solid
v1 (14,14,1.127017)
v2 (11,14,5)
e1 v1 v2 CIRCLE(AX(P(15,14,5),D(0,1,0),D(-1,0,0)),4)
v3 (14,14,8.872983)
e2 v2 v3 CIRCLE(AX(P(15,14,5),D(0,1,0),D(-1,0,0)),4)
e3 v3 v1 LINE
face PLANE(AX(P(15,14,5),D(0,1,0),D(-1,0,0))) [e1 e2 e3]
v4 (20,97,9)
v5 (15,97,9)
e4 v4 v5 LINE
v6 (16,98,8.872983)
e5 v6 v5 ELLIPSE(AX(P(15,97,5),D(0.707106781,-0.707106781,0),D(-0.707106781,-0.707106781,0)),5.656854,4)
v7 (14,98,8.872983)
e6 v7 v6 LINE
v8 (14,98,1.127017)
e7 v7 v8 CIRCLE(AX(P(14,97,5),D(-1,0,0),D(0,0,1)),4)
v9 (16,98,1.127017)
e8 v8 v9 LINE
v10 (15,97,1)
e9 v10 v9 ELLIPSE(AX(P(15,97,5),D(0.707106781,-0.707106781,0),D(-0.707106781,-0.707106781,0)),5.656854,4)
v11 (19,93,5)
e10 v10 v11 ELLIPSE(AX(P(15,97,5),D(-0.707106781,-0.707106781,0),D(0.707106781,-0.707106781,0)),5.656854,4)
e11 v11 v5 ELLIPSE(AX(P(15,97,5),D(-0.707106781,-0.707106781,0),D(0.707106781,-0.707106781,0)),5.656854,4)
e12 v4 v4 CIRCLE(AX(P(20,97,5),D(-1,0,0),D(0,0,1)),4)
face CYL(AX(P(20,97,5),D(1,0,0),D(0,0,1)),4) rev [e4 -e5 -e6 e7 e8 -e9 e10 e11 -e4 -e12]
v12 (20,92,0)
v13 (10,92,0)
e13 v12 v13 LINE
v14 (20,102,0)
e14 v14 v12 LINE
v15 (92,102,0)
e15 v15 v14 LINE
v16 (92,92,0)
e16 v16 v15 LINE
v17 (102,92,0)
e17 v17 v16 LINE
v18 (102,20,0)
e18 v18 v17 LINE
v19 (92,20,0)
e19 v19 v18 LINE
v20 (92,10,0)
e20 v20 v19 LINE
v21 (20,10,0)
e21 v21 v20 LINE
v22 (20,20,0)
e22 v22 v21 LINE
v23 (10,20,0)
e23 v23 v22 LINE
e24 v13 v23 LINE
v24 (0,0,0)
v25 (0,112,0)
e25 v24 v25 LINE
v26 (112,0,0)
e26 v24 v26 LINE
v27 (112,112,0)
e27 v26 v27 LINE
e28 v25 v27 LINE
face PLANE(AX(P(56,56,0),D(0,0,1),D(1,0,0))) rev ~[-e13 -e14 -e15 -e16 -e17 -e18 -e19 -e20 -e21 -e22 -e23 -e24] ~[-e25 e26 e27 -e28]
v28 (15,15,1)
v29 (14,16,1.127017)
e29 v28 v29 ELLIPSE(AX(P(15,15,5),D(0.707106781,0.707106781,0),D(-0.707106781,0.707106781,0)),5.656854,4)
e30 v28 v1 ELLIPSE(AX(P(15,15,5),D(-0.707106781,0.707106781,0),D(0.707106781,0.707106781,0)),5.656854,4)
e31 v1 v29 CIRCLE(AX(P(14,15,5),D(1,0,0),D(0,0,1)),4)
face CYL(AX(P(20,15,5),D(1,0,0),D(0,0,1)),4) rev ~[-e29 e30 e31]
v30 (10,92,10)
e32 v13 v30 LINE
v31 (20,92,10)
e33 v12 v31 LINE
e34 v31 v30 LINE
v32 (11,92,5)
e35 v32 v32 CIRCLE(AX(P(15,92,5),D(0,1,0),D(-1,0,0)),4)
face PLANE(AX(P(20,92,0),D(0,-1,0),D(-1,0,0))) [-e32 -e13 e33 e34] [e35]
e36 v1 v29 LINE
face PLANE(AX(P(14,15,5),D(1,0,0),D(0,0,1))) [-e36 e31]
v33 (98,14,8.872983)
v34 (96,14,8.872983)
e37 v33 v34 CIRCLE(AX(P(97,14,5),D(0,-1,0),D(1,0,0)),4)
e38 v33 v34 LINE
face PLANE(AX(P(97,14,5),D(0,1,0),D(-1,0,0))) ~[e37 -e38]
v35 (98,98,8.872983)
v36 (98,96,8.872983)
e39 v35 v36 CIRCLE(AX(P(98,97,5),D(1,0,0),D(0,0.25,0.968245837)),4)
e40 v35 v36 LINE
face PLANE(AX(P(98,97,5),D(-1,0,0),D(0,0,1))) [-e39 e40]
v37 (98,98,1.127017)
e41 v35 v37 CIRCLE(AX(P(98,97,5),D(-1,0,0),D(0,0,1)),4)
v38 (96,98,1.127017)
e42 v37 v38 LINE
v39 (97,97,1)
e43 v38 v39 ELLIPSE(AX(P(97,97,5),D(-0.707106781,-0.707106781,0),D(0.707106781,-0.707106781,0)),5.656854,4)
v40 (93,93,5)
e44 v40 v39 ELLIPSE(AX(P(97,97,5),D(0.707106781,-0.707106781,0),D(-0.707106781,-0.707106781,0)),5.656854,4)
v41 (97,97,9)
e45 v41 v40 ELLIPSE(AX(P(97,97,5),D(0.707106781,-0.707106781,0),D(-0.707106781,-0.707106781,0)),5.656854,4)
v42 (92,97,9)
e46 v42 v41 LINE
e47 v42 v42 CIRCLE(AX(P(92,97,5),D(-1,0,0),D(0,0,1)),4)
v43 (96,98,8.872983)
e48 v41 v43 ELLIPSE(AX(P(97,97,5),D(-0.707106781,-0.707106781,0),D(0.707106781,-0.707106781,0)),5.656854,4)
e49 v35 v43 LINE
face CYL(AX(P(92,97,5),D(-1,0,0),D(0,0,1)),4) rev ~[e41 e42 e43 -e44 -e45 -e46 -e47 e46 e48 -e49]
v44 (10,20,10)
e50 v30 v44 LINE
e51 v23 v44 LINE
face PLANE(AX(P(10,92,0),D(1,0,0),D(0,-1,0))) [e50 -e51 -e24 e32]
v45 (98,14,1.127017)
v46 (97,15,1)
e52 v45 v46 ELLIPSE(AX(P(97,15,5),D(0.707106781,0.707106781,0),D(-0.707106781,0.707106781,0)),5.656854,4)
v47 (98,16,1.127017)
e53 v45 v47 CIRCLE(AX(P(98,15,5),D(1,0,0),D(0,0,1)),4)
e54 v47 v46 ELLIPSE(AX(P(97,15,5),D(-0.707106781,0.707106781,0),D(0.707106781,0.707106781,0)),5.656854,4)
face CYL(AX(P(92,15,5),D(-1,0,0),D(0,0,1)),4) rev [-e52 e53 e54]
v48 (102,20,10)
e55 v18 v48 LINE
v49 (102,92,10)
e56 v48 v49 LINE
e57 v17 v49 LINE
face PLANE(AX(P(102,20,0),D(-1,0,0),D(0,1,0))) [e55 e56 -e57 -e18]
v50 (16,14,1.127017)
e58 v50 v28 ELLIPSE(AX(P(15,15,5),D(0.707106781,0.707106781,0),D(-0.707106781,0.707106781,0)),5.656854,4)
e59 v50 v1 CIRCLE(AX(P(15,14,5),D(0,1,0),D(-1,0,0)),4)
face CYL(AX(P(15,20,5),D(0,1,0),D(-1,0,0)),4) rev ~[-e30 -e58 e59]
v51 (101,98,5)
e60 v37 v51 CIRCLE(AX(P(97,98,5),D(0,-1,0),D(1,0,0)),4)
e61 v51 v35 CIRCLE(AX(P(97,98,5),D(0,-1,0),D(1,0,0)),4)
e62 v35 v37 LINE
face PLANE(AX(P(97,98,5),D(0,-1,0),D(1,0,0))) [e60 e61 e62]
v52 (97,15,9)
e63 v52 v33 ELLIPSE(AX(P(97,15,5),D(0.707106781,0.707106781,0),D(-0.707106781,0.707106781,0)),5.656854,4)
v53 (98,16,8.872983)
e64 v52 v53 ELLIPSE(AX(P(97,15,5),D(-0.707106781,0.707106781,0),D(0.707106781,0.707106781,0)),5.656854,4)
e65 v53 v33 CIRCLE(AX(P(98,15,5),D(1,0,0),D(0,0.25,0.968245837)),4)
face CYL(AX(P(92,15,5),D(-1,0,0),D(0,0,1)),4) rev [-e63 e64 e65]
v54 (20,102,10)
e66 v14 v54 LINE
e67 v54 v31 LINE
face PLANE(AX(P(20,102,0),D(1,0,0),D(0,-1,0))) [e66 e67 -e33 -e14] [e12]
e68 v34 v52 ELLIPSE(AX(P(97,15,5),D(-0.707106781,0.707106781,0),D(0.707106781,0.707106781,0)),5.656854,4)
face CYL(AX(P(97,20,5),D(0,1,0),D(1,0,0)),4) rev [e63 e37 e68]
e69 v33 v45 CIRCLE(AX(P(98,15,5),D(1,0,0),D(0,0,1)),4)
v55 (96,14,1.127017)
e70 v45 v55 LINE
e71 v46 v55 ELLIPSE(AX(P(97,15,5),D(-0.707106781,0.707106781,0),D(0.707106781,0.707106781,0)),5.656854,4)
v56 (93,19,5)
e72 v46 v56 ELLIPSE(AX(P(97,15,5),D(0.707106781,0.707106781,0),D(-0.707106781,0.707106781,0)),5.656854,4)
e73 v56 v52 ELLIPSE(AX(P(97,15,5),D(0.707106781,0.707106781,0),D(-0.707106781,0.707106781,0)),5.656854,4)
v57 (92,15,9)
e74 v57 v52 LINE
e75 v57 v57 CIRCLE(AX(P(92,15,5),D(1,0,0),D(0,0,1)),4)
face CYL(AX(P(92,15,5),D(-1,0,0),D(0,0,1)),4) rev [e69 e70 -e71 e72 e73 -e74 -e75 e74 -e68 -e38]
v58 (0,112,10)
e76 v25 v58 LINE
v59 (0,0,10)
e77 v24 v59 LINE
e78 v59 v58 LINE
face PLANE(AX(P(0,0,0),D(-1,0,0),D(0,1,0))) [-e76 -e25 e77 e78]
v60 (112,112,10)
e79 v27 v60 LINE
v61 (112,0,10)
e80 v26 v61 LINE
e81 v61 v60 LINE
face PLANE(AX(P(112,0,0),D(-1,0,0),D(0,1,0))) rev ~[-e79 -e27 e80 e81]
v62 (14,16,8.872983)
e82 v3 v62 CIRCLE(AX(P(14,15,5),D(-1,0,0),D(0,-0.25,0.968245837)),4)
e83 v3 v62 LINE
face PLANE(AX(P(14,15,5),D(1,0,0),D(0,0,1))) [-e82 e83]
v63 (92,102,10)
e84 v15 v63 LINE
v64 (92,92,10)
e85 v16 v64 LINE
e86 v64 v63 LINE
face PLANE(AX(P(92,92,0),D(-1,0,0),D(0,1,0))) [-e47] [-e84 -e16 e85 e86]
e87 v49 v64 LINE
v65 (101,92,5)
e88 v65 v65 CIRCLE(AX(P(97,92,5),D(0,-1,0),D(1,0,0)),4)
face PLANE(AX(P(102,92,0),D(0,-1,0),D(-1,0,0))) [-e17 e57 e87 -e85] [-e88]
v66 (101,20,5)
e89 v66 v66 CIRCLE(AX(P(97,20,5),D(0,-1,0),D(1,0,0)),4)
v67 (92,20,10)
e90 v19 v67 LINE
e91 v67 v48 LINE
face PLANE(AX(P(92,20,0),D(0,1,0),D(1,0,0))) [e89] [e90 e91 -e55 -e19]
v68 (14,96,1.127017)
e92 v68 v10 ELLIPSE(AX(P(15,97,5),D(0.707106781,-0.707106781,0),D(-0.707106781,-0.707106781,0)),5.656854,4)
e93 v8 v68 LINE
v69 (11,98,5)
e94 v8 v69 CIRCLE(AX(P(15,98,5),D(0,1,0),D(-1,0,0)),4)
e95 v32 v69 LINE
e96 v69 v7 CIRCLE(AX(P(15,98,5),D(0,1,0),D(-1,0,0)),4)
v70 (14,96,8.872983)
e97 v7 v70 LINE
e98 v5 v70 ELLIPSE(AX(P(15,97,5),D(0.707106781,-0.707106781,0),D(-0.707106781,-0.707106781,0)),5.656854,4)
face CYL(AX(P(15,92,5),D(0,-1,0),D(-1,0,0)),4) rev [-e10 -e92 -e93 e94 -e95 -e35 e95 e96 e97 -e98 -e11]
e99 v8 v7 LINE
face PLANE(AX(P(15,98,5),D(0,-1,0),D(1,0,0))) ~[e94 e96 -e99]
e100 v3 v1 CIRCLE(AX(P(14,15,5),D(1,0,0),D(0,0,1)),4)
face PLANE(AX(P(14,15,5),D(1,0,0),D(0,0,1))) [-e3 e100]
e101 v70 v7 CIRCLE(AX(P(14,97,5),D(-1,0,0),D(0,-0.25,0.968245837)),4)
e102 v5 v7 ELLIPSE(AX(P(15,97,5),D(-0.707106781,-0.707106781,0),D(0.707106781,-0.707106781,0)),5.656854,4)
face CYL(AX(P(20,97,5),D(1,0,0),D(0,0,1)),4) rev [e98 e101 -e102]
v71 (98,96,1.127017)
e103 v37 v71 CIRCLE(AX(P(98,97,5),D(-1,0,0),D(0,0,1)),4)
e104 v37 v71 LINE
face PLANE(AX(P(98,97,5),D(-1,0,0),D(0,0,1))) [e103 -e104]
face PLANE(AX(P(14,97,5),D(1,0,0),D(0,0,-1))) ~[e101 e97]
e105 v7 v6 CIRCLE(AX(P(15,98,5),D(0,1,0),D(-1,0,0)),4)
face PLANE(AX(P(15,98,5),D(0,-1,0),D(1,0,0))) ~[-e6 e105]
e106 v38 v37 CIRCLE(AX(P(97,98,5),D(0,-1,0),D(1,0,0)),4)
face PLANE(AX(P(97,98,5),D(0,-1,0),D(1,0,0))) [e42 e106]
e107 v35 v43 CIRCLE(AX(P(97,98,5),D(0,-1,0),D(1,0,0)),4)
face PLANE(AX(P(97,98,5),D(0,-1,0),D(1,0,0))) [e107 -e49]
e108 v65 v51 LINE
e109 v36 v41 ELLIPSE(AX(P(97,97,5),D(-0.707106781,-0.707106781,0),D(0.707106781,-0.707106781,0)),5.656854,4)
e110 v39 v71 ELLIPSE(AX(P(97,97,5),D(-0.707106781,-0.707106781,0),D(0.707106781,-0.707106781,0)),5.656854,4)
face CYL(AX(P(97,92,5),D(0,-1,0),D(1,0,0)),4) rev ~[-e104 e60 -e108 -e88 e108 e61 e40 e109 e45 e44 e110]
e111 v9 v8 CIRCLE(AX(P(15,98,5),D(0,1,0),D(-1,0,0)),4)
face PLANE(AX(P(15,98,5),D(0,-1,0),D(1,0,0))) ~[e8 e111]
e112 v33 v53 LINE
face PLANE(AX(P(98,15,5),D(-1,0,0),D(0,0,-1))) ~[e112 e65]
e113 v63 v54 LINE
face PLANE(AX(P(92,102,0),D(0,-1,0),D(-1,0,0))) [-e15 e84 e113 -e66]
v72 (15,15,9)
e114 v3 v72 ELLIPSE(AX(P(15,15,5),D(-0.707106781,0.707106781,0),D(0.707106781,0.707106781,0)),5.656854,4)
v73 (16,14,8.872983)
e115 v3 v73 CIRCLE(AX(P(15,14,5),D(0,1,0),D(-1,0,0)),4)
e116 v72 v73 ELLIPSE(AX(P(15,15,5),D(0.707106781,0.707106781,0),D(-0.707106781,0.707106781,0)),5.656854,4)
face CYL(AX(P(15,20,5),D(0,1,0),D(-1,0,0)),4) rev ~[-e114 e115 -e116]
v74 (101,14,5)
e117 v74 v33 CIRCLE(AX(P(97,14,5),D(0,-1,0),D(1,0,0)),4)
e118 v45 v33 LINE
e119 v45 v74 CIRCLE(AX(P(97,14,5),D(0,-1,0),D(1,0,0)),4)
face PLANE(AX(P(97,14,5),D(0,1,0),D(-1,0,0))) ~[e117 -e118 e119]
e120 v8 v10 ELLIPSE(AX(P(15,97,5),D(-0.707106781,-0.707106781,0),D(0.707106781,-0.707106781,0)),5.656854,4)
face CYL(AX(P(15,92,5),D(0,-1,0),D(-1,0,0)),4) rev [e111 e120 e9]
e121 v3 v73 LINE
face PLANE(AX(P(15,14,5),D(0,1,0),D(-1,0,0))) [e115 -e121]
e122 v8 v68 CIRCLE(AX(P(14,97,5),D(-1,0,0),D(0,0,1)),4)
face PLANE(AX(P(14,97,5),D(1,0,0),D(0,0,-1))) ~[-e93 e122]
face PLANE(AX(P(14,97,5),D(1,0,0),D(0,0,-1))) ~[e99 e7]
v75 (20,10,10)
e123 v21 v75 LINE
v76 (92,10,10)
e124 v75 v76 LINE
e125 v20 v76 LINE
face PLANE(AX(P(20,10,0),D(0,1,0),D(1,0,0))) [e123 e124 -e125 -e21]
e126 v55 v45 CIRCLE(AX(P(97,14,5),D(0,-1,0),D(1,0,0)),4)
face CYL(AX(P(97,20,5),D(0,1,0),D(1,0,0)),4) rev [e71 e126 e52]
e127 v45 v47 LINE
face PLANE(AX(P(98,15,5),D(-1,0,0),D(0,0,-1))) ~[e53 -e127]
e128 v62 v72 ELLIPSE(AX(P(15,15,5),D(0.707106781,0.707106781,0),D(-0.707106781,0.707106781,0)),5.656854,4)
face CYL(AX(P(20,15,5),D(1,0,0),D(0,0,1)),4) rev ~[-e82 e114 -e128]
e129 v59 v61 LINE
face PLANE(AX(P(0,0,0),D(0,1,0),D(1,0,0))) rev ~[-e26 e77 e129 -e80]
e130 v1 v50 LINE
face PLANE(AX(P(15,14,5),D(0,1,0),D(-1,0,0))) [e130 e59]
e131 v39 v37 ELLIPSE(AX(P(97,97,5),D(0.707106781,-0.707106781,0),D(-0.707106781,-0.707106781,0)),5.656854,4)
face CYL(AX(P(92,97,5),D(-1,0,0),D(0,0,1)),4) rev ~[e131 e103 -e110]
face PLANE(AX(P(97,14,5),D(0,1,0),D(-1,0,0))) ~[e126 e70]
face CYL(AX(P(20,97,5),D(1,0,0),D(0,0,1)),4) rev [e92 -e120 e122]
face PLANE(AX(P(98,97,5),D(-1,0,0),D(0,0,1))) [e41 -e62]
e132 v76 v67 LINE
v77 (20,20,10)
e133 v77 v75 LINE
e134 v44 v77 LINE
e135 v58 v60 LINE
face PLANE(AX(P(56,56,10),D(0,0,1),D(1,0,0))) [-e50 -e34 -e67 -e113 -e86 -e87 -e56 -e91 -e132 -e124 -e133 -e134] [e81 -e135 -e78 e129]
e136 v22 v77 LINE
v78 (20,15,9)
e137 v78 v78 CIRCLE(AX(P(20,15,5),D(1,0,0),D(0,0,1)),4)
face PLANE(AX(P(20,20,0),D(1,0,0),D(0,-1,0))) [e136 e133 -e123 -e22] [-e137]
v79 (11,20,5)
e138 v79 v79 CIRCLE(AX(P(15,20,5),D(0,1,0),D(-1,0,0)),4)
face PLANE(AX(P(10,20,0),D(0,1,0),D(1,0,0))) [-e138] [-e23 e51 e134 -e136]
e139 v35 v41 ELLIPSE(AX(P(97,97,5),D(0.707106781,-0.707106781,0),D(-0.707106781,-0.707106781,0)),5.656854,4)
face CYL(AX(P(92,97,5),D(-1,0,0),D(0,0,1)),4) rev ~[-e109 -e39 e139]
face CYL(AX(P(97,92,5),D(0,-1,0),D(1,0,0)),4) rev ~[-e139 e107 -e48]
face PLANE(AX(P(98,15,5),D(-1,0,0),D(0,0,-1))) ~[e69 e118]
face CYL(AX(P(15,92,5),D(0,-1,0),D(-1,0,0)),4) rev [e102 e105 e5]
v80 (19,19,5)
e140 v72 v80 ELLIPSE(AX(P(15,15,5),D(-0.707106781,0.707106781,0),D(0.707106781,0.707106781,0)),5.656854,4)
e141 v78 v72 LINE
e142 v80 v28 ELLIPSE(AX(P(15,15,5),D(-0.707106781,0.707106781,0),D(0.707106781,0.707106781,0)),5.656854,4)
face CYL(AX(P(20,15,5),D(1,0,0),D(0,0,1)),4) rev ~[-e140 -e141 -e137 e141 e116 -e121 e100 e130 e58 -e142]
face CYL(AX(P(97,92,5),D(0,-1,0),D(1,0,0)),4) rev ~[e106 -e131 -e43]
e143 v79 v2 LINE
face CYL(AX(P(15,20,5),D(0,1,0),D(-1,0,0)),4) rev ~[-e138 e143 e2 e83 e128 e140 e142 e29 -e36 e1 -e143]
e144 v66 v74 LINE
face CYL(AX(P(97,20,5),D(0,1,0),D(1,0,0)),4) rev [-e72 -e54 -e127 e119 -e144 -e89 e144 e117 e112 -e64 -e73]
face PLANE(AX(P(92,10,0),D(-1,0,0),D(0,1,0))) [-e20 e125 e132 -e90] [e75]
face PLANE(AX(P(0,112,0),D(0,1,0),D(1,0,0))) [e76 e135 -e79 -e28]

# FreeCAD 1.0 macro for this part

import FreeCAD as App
import Part
import Sketcher
Q = App.Units.Quantity

doc = App.newDocument("Part")
body = doc.addObject("PartDesign::Body", "Body")

# Sketch on XY plane
sketch1 = body.newObject("Sketcher::SketchObject", "Sketch")
sketch1.AttachmentSupport = (doc.getObject("XY_Plane"), [""])
sketch1.MapMode = "FlatFace"
sketch1.addGeometry(Part.LineSegment(App.Vector(0, 112, 0), App.Vector(0, 0, 0)), False)
sketch1.addGeometry(Part.LineSegment(App.Vector(0, 0, 0), App.Vector(112, 0, 0)), False)
sketch1.addGeometry(Part.LineSegment(App.Vector(112, 0, 0), App.Vector(112, 112, 0)), False)
sketch1.addGeometry(Part.LineSegment(App.Vector(112, 112, 0), App.Vector(0, 112, 0)), False)
sketch1.addGeometry(Part.LineSegment(App.Vector(92, 10, 0), App.Vector(20, 10, 0)), False)
sketch1.addGeometry(Part.LineSegment(App.Vector(20, 10, 0), App.Vector(20, 20, 0)), False)
sketch1.addGeometry(Part.LineSegment(App.Vector(20, 20, 0), App.Vector(10, 20, 0)), False)
sketch1.addGeometry(Part.LineSegment(App.Vector(10, 20, 0), App.Vector(10, 92, 0)), False)
sketch1.addGeometry(Part.LineSegment(App.Vector(10, 92, 0), App.Vector(20, 92, 0)), False)
sketch1.addGeometry(Part.LineSegment(App.Vector(20, 92, 0), App.Vector(20, 102, 0)), False)
sketch1.addGeometry(Part.LineSegment(App.Vector(20, 102, 0), App.Vector(92, 102, 0)), False)
sketch1.addGeometry(Part.LineSegment(App.Vector(92, 102, 0), App.Vector(92, 92, 0)), False)
sketch1.addGeometry(Part.LineSegment(App.Vector(92, 92, 0), App.Vector(102, 92, 0)), False)
sketch1.addGeometry(Part.LineSegment(App.Vector(102, 92, 0), App.Vector(102, 20, 0)), False)
sketch1.addGeometry(Part.LineSegment(App.Vector(102, 20, 0), App.Vector(92, 20, 0)), False)
sketch1.addGeometry(Part.LineSegment(App.Vector(92, 20, 0), App.Vector(92, 10, 0)), False)
sketch1.addConstraint(Sketcher.Constraint("Coincident", 0, 2, 1, 1))
sketch1.addConstraint(Sketcher.Constraint("Coincident", 1, 2, 2, 1))
sketch1.addConstraint(Sketcher.Constraint("Coincident", 2, 2, 3, 1))
sketch1.addConstraint(Sketcher.Constraint("Coincident", 3, 2, 0, 1))
sketch1.addConstraint(Sketcher.Constraint("Coincident", 4, 2, 5, 1))
sketch1.addConstraint(Sketcher.Constraint("Coincident", 5, 2, 6, 1))
sketch1.addConstraint(Sketcher.Constraint("Coincident", 6, 2, 7, 1))
sketch1.addConstraint(Sketcher.Constraint("Coincident", 7, 2, 8, 1))
sketch1.addConstraint(Sketcher.Constraint("Coincident", 8, 2, 9, 1))
sketch1.addConstraint(Sketcher.Constraint("Coincident", 9, 2, 10, 1))
sketch1.addConstraint(Sketcher.Constraint("Coincident", 10, 2, 11, 1))
sketch1.addConstraint(Sketcher.Constraint("Coincident", 11, 2, 12, 1))
sketch1.addConstraint(Sketcher.Constraint("Coincident", 12, 2, 13, 1))
sketch1.addConstraint(Sketcher.Constraint("Coincident", 13, 2, 14, 1))
sketch1.addConstraint(Sketcher.Constraint("Coincident", 14, 2, 15, 1))
sketch1.addConstraint(Sketcher.Constraint("Coincident", 15, 2, 4, 1))
sketch1.addConstraint(Sketcher.Constraint("Vertical", 0))
sketch1.addConstraint(Sketcher.Constraint("Horizontal", 1))
sketch1.addConstraint(Sketcher.Constraint("Vertical", 2))
sketch1.addConstraint(Sketcher.Constraint("Horizontal", 3))
sketch1.addConstraint(Sketcher.Constraint("Horizontal", 4))
sketch1.addConstraint(Sketcher.Constraint("Vertical", 5))
sketch1.addConstraint(Sketcher.Constraint("Horizontal", 6))
sketch1.addConstraint(Sketcher.Constraint("Vertical", 7))
sketch1.addConstraint(Sketcher.Constraint("Horizontal", 8))
sketch1.addConstraint(Sketcher.Constraint("Vertical", 9))
sketch1.addConstraint(Sketcher.Constraint("Horizontal", 10))
sketch1.addConstraint(Sketcher.Constraint("Vertical", 11))
sketch1.addConstraint(Sketcher.Constraint("Horizontal", 12))
sketch1.addConstraint(Sketcher.Constraint("Vertical", 13))
sketch1.addConstraint(Sketcher.Constraint("Horizontal", 14))
sketch1.addConstraint(Sketcher.Constraint("Vertical", 15))
sketch1.addConstraint(Sketcher.Constraint("Coincident", 0, 2, -1, 1))
sketch1.addConstraint(Sketcher.Constraint("Horizontal", 8, 2, 11, 2))
sketch1.addConstraint(Sketcher.Constraint("Horizontal", 6, 2, 13, 2))
sketch1.addConstraint(Sketcher.Constraint("Vertical", 5, 2, 8, 2))
sketch1.addConstraint(Sketcher.Constraint("Vertical", 11, 2, 14, 2))
sketch1.addConstraint(Sketcher.Constraint("Equal", 8, 12))
sketch1.addConstraint(Sketcher.Constraint("Equal", 3, 0))
sketch1.addConstraint(Sketcher.Constraint("Equal", 14, 5))
sketch1.addConstraint(Sketcher.Constraint("Equal", 10, 7))
sketch1.addConstraint(Sketcher.Constraint("Equal", 5, 9))
sketch1.addConstraint(Sketcher.Constraint("DistanceX", 1, 1, 1, 2, Q("112 mm")))
sketch1.addConstraint(Sketcher.Constraint("DistanceX", 4, 2, 4, 1, Q("72 mm")))
sketch1.addConstraint(Sketcher.Constraint("DistanceX", 6, 2, 6, 1, Q("10 mm")))
sketch1.addConstraint(Sketcher.Constraint("DistanceX", -1, 1, 4, 2, Q("20 mm")))
sketch1.addConstraint(Sketcher.Constraint("DistanceY", -1, 1, 4, 2, Q("10 mm")))
pad1 = body.newObject("PartDesign::Pad", "Pad")
pad1.Profile = sketch1
pad1.Length = 10

# Sketch on XZ plane
sketch2 = body.newObject("Sketcher::SketchObject", "Sketch001")
sketch2.AttachmentSupport = (doc.getObject("XZ_Plane"), [""])
sketch2.MapMode = "FlatFace"
sketch2.AttachmentOffset = App.Placement(App.Vector(0, 0, -92), App.Rotation())
sketch2.addGeometry(Part.Circle(App.Vector(97, 5, 0), App.Vector(0, 0, 1), 4), False)
sketch2.addConstraint(Sketcher.Constraint("Diameter", 0, Q("8 mm")))
sketch2.addConstraint(Sketcher.Constraint("DistanceX", -1, 1, 0, 3, Q("97 mm")))
sketch2.addConstraint(Sketcher.Constraint("DistanceY", -1, 1, 0, 3, Q("5 mm")))
pocket1 = body.newObject("PartDesign::Pocket", "Pocket")
pocket1.Profile = sketch2
pocket1.Length = 6

# Sketch on YZ plane
sketch3 = body.newObject("Sketcher::SketchObject", "Sketch002")
sketch3.AttachmentSupport = (doc.getObject("YZ_Plane"), [""])
sketch3.MapMode = "FlatFace"
sketch3.AttachmentOffset = App.Placement(App.Vector(0, 0, 92), App.Rotation())
sketch3.addGeometry(Part.Circle(App.Vector(97, 5, 0), App.Vector(0, 0, 1), 4), False)
sketch3.addConstraint(Sketcher.Constraint("Diameter", 0, Q("8 mm")))
sketch3.addConstraint(Sketcher.Constraint("DistanceX", -1, 1, 0, 3, Q("97 mm")))
sketch3.addConstraint(Sketcher.Constraint("DistanceY", -1, 1, 0, 3, Q("5 mm")))
pocket2 = body.newObject("PartDesign::Pocket", "Pocket001")
pocket2.Profile = sketch3
pocket2.Length = 6
pocket2.Reversed = True
doc.recompute()

datumplane = body.newObject("PartDesign::Plane", "DatumPlane")
datumplane.AttachmentSupport = (doc.getObject("YZ_Plane"), [""])
datumplane.MapMode = "FlatFace"
datumplane.AttachmentOffset = App.Placement(App.Vector(0, 0, 56), App.Rotation())
mirrored = body.newObject("PartDesign::Mirrored", "Mirrored")
mirrored.Originals = [pocket1, pocket2]
mirrored.MirrorPlane = (datumplane, [""])
body.Tip = mirrored
doc.recompute()

datumplane2 = body.newObject("PartDesign::Plane", "DatumPlane001")
datumplane2.AttachmentSupport = (doc.getObject("XZ_Plane"), [""])
datumplane2.MapMode = "FlatFace"
datumplane2.AttachmentOffset = App.Placement(App.Vector(0, 0, -56), App.Rotation())
mirrored2 = body.newObject("PartDesign::Mirrored", "Mirrored001")
mirrored2.Originals = [pocket1, pocket2]
mirrored2.MirrorPlane = (datumplane2, [""])
body.Tip = mirrored2

# Sketch on XZ plane
sketch4 = body.newObject("Sketcher::SketchObject", "Sketch003")
sketch4.AttachmentSupport = (doc.getObject("XZ_Plane"), [""])
sketch4.MapMode = "FlatFace"
sketch4.AttachmentOffset = App.Placement(App.Vector(0, 0, -20), App.Rotation())
sketch4.addGeometry(Part.Circle(App.Vector(15, 5, 0), App.Vector(0, 0, 1), 4), False)
sketch4.addConstraint(Sketcher.Constraint("Diameter", 0, Q("8 mm")))
sketch4.addConstraint(Sketcher.Constraint("DistanceX", -1, 1, 0, 3, Q("15 mm")))
sketch4.addConstraint(Sketcher.Constraint("DistanceY", -1, 1, 0, 3, Q("5 mm")))
pocket3 = body.newObject("PartDesign::Pocket", "Pocket002")
pocket3.Profile = sketch4
pocket3.Length = 6
pocket3.Reversed = True

# Sketch on YZ plane
sketch5 = body.newObject("Sketcher::SketchObject", "Sketch004")
sketch5.AttachmentSupport = (doc.getObject("YZ_Plane"), [""])
sketch5.MapMode = "FlatFace"
sketch5.AttachmentOffset = App.Placement(App.Vector(0, 0, 20), App.Rotation())
sketch5.addGeometry(Part.Circle(App.Vector(15, 5, 0), App.Vector(0, 0, 1), 4), False)
sketch5.addConstraint(Sketcher.Constraint("Diameter", 0, Q("8 mm")))
sketch5.addConstraint(Sketcher.Constraint("DistanceX", -1, 1, 0, 3, Q("15 mm")))
sketch5.addConstraint(Sketcher.Constraint("DistanceY", -1, 1, 0, 3, Q("5 mm")))
pocket4 = body.newObject("PartDesign::Pocket", "Pocket003")
pocket4.Profile = sketch5
pocket4.Length = 6

doc.recompute()
